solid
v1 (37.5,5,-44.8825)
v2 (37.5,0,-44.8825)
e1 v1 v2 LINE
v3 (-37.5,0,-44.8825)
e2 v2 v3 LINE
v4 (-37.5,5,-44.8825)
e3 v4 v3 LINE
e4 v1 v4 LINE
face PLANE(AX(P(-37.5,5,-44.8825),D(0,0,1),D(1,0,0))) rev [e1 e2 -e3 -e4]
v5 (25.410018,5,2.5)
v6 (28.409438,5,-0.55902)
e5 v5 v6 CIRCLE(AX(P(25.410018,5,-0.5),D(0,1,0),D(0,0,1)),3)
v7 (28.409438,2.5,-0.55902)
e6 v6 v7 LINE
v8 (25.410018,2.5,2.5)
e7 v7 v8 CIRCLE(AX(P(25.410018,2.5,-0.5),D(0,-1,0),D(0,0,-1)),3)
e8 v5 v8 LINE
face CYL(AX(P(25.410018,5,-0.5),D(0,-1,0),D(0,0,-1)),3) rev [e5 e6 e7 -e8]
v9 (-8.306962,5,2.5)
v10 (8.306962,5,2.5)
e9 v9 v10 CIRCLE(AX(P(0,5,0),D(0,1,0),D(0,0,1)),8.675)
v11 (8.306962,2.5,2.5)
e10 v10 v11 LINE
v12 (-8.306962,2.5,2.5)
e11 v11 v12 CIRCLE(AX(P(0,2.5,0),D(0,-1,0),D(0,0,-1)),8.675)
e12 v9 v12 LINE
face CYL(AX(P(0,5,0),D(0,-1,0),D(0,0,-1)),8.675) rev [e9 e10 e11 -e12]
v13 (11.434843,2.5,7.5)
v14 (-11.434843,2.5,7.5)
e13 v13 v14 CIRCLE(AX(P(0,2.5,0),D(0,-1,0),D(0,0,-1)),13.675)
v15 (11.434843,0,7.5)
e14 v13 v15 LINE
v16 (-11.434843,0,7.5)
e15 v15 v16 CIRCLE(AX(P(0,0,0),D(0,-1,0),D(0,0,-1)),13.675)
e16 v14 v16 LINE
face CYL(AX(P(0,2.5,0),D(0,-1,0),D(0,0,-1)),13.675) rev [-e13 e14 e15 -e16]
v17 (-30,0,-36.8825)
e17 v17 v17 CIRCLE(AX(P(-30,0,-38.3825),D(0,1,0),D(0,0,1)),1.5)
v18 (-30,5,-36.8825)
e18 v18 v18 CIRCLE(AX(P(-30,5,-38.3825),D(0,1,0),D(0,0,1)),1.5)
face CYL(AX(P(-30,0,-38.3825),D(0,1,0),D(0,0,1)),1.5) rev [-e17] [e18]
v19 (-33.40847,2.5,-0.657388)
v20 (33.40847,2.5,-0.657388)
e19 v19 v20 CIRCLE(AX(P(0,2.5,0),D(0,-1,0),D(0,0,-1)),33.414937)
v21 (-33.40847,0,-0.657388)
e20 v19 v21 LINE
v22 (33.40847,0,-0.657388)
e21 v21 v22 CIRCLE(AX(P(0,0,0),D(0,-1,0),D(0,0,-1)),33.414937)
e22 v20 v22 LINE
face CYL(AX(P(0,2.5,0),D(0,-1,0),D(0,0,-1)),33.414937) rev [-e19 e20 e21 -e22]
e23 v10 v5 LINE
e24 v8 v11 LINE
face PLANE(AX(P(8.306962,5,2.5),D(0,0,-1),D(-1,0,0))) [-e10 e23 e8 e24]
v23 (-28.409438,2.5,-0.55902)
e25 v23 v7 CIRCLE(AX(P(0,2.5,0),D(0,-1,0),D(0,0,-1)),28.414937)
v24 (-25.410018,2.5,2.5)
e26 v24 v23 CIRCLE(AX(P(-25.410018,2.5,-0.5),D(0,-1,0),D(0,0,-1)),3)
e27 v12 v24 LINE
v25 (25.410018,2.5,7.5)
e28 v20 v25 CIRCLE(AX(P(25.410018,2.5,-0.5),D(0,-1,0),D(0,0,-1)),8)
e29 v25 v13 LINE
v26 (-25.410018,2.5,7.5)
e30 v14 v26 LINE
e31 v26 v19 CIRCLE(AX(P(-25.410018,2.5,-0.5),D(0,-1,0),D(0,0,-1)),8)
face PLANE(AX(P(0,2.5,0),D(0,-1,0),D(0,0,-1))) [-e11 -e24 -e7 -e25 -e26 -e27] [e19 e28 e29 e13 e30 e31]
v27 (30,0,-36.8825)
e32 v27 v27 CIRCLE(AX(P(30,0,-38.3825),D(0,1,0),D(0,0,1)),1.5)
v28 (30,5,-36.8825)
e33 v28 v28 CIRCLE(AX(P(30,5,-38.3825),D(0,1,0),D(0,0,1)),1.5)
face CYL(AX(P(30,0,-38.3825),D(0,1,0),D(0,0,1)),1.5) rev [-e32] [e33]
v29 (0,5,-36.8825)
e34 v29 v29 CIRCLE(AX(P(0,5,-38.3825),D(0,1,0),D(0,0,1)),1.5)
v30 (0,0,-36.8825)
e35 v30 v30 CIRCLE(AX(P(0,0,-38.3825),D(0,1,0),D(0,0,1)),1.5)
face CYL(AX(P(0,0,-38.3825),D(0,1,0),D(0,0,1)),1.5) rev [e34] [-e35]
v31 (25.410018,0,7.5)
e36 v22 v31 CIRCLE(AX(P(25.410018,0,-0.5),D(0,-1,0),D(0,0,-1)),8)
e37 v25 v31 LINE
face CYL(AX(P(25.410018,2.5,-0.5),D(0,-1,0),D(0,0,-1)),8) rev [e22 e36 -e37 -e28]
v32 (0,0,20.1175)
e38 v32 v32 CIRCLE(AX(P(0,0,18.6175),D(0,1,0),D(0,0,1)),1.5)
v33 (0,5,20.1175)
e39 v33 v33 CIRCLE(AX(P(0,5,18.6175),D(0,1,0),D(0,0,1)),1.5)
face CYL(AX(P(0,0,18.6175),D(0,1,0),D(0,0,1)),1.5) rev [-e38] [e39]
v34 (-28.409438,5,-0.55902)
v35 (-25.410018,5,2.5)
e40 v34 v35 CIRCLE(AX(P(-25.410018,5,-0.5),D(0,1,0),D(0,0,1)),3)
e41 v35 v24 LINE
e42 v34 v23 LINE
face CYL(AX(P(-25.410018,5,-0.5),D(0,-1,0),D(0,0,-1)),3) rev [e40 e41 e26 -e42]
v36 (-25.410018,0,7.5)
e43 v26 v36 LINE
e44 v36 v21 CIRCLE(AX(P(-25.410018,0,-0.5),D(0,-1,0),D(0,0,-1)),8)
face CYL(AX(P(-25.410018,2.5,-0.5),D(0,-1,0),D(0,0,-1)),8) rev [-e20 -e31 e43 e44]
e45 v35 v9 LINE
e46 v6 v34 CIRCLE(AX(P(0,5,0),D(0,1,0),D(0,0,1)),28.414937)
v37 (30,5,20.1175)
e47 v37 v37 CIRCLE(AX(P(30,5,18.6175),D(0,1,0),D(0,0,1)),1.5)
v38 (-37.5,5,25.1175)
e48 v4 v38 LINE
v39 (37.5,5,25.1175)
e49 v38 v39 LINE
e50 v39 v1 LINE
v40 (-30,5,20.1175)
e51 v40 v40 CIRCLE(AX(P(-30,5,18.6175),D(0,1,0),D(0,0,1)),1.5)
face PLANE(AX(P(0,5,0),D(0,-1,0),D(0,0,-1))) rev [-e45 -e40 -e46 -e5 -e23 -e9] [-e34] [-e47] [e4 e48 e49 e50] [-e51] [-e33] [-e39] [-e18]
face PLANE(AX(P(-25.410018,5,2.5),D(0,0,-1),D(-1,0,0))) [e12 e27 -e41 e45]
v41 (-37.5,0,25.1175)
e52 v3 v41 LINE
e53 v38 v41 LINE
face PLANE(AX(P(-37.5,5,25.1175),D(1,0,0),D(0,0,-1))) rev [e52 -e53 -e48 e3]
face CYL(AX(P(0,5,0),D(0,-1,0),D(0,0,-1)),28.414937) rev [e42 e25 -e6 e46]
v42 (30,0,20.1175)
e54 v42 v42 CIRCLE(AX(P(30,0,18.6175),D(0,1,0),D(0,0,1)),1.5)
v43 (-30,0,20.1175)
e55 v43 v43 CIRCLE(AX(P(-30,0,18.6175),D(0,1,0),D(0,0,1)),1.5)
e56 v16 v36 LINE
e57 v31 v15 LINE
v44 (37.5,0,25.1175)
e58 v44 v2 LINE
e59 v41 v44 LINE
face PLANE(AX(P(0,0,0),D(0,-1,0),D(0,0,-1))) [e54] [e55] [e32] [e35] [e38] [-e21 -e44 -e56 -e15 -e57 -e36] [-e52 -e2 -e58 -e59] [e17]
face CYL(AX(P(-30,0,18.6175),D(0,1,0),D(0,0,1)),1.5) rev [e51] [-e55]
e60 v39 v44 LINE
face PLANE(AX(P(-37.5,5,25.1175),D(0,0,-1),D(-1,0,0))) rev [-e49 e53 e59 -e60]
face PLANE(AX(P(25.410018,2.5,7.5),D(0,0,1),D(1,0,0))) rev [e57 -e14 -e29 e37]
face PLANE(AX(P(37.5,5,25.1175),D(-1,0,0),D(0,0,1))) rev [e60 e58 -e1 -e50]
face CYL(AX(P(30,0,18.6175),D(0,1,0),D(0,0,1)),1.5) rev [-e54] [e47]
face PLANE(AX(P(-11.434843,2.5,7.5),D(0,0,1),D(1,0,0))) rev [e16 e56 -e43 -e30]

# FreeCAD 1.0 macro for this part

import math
import FreeCAD as App
import Part
import Sketcher
from FreeCAD import Vector
Q = App.Units.Quantity

doc = App.newDocument("Part")
body = doc.addObject("PartDesign::Body", "Body")

sketch1 = doc.addObject("Sketcher::SketchObject", "Sketch")
body.addObject(sketch1)
sketch1.AttachmentSupport = (doc.XZ_Plane, [""])
sketch1.MapMode = "FlatFace"
sketch1.addGeometry([
    Part.LineSegment(Vector(-37.5, -44.9, 0), Vector(-37.5, 25.1, 0)),
    Part.LineSegment(Vector(-37.5, 25.1, 0), Vector(37.5, 25.1, 0)),
    Part.LineSegment(Vector(37.5, 25.1, 0), Vector(37.5, -44.9, 0)),
    Part.LineSegment(Vector(37.5, -44.9, 0), Vector(-37.5, -44.9, 0)),
    Part.LineSegment(Vector(-8.3, 2.5, 0), Vector(-25.4, 2.5, 0)),
    Part.ArcOfCircle(Part.Circle(Vector(-25.4, -0.5, 0), Vector(0, 0, 1), 3), math.radians(90), math.radians(181)),
    Part.ArcOfCircle(Part.Circle(Vector(0, 0, 0), Vector(0, 0, 1), 28.4), math.radians(-179), math.radians(-1)),
    Part.ArcOfCircle(Part.Circle(Vector(25.4, -0.5, 0), Vector(0, 0, 1), 3), math.radians(-1), math.radians(90)),
    Part.LineSegment(Vector(25.4, 2.5, 0), Vector(8.3, 2.5, 0)),
    Part.ArcOfCircle(Part.Circle(Vector(0, 0, 0), Vector(0, 0, 1), 8.7), math.radians(17), math.radians(163)),
], False)
sketch1.addConstraint([
    Sketcher.Constraint("Coincident", 0, 2, 1, 1),
    Sketcher.Constraint("Coincident", 1, 2, 2, 1),
    Sketcher.Constraint("Coincident", 2, 2, 3, 1),
    Sketcher.Constraint("Coincident", 3, 2, 0, 1),
    Sketcher.Constraint("Tangent", 4, 2, 5, 1),
    Sketcher.Constraint("Tangent", 5, 2, 6, 1),
    Sketcher.Constraint("Tangent", 6, 2, 7, 1),
    Sketcher.Constraint("Tangent", 7, 2, 8, 1),
    Sketcher.Constraint("Coincident", 8, 2, 9, 1),
    Sketcher.Constraint("Coincident", 9, 2, 4, 1),
    Sketcher.Constraint("Vertical", 0),
    Sketcher.Constraint("Horizontal", 1),
    Sketcher.Constraint("Vertical", 2),
    Sketcher.Constraint("Horizontal", 3),
    Sketcher.Constraint("Horizontal", 4),
    Sketcher.Constraint("Horizontal", 8),
    Sketcher.Constraint("Coincident", 6, 3, -1, 1),
    Sketcher.Constraint("Coincident", 9, 3, -1, 1),
    Sketcher.Constraint("Equal", 5, 7),
    Sketcher.Constraint("Horizontal", 5, 3, 7, 3),
    Sketcher.Constraint("Radius", 5, Q("3 mm")),
    Sketcher.Constraint("DistanceX", 1, 1, 1, 2, Q("75 mm")),
    Sketcher.Constraint("DistanceY", 0, 1, 0, 2, Q("70 mm")),
    Sketcher.Constraint("Radius", 9, Q("8.675 mm")),
    Sketcher.Constraint("DistanceY", 5, 3, -1, 1, Q("0.5 mm")),
    Sketcher.Constraint("DistanceX", 0, 2, -1, 1, Q("37.5 mm")),
    Sketcher.Constraint("Radius", 6, Q("28.414937 mm")),
    Sketcher.Constraint("DistanceY", -1, 1, 0, 2, Q("25.1175 mm")),
])
pad1 = doc.addObject("PartDesign::Pad", "Pad")
body.addObject(pad1)
pad1.Profile = sketch1
pad1.Length = 5
pad1.Reversed = True

sketch2 = doc.addObject("Sketcher::SketchObject", "Sketch001")
body.addObject(sketch2)
sketch2.AttachmentSupport = (doc.XZ_Plane, [""])
sketch2.MapMode = "FlatFace"
sketch2.AttachmentOffset = App.Placement(Vector(0, 0, -5), App.Rotation())
sketch2.addGeometry([
    Part.Circle(Vector(-30, -38.4, 0), Vector(0, 0, 1), 1.5),
    Part.Circle(Vector(-30, 18.6, 0), Vector(0, 0, 1), 1.5),
    Part.Circle(Vector(0, 18.6, 0), Vector(0, 0, 1), 1.5),
    Part.Circle(Vector(30, 18.6, 0), Vector(0, 0, 1), 1.5),
    Part.Circle(Vector(30, -38.4, 0), Vector(0, 0, 1), 1.5),
    Part.Circle(Vector(0, -38.4, 0), Vector(0, 0, 1), 1.5),
], False)
sketch2.addConstraint([
    Sketcher.Constraint("Equal", 0, 1),
    Sketcher.Constraint("Equal", 1, 2),
    Sketcher.Constraint("Equal", 2, 3),
    Sketcher.Constraint("Equal", 3, 4),
    Sketcher.Constraint("Equal", 4, 5),
    Sketcher.Constraint("Symmetric", 1, 3, 3, 3, -2),
    Sketcher.Constraint("Symmetric", 0, 3, 4, 3, -2),
    Sketcher.Constraint("PointOnObject", 2, 3, -2),
    Sketcher.Constraint("PointOnObject", 5, 3, -2),
    Sketcher.Constraint("Horizontal", 1, 3, 2, 3),
    Sketcher.Constraint("Horizontal", 4, 3, 5, 3),
    Sketcher.Constraint("Vertical", 0, 3, 1, 3),
    Sketcher.Constraint("Diameter", 0, Q("3 mm")),
    Sketcher.Constraint("DistanceX", 0, 3, -1, 1, Q("30 mm")),
    Sketcher.Constraint("DistanceY", 0, 3, 1, 3, Q("57 mm")),
    Sketcher.Constraint("DistanceY", 0, 3, -1, 1, Q("38.3825 mm")),
])
pocket1 = doc.addObject("PartDesign::Pocket", "Pocket")
body.addObject(pocket1)
pocket1.Profile = sketch2
pocket1.Type = "ThroughAll"
pocket1.Reversed = True

sketch3 = doc.addObject("Sketcher::SketchObject", "Sketch002")
body.addObject(sketch3)
sketch3.AttachmentSupport = (doc.XZ_Plane, [""])
sketch3.MapMode = "FlatFace"
sketch3.addGeometry([
    Part.LineSegment(Vector(25, 8, 0), Vector(11, 8, 0)),
    Part.ArcOfCircle(Part.Circle(Vector(0, 0, 0), Vector(0, 0, 1), 14), math.radians(33), math.radians(147)),
    Part.LineSegment(Vector(-11, 8, 0), Vector(-25, 8, 0)),
    Part.ArcOfCircle(Part.Circle(Vector(-25, -1, 0), Vector(0, 0, 1), 8), math.radians(90), math.radians(181)),
    Part.ArcOfCircle(Part.Circle(Vector(0, 0, 0), Vector(0, 0, 1), 33), math.radians(-179), math.radians(-1)),
    Part.ArcOfCircle(Part.Circle(Vector(25, -1, 0), Vector(0, 0, 1), 8), math.radians(-1), math.radians(90)),
], False)
sketch3.addConstraint([
    Sketcher.Constraint("Coincident", 0, 2, 1, 1),
    Sketcher.Constraint("Coincident", 1, 2, 2, 1),
    Sketcher.Constraint("Tangent", 2, 2, 3, 1),
    Sketcher.Constraint("Tangent", 3, 2, 4, 1),
    Sketcher.Constraint("Tangent", 4, 2, 5, 1),
    Sketcher.Constraint("Tangent", 5, 2, 0, 1),
    Sketcher.Constraint("Horizontal", 0),
    Sketcher.Constraint("Horizontal", 2),
    Sketcher.Constraint("Coincident", 1, 3, -1, 1),
    Sketcher.Constraint("Coincident", 4, 3, -1, 1),
    Sketcher.Constraint("Equal", 3, 5),
    Sketcher.Constraint("Horizontal", 3, 3, 5, 3),
    Sketcher.Constraint("Radius", 3, Q("8 mm")),
    Sketcher.Constraint("Radius", 1, Q("13.675 mm")),
    Sketcher.Constraint("DistanceY", 3, 3, -1, 1, Q("0.5 mm")),
    Sketcher.Constraint("Radius", 4, Q("33.414937 mm")),
])
pocket2 = doc.addObject("PartDesign::Pocket", "Pocket001")
body.addObject(pocket2)
pocket2.Profile = sketch3
pocket2.Length = 2.5

doc.recompute()
